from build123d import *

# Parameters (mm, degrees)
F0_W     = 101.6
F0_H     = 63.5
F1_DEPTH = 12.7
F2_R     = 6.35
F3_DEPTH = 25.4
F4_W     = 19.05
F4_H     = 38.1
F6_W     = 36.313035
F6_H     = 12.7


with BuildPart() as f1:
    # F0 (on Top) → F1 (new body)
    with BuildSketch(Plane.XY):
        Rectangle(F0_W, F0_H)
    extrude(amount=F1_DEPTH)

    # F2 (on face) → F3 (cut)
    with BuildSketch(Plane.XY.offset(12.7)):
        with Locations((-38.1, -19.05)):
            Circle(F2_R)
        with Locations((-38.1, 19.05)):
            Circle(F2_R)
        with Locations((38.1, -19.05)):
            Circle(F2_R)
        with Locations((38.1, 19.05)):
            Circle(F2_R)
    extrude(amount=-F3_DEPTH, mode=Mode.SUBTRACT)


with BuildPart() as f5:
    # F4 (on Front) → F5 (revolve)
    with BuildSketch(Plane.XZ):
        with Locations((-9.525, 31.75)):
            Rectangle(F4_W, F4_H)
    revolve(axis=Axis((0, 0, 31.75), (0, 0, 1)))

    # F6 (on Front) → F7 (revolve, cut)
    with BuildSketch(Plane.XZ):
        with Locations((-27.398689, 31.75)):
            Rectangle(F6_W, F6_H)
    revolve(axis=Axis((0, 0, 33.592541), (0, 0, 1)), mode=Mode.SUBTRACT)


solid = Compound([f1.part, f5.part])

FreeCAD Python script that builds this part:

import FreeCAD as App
import Part
import Sketcher

V = App.Vector
Q = App.Units.Quantity

doc = App.newDocument("Part")
body = doc.addObject("PartDesign::Body", "Body")

sketch1 = body.newObject("Sketcher::SketchObject", "Sketch")
sketch1.AttachmentSupport = (doc.getObject("XY_Plane"), [""])
sketch1.MapMode = "FlatFace"
sketch1.addGeometry([
    Part.LineSegment(V(-51, 32, 0), V(-51, -32, 0)),
    Part.LineSegment(V(-51, -32, 0), V(51, -32, 0)),
    Part.LineSegment(V(51, -32, 0), V(51, 32, 0)),
    Part.LineSegment(V(51, 32, 0), V(-51, 32, 0)),
], False)
sketch1.addConstraint([
    Sketcher.Constraint("Coincident", 0, 2, 1, 1),
    Sketcher.Constraint("Coincident", 1, 2, 2, 1),
    Sketcher.Constraint("Coincident", 2, 2, 3, 1),
    Sketcher.Constraint("Coincident", 3, 2, 0, 1),
    Sketcher.Constraint("Vertical", 0),
    Sketcher.Constraint("Horizontal", 1),
    Sketcher.Constraint("Vertical", 2),
    Sketcher.Constraint("Horizontal", 3),
    Sketcher.Constraint("Symmetric", 0, 2, 2, 2, -1, 1),
    Sketcher.Constraint("DistanceX", 1, 1, 1, 2, Q("4 in")),
    Sketcher.Constraint("DistanceY", 0, 2, 0, 1, Q("2.5 in")),
])
pad1 = body.newObject("PartDesign::Pad", "Pad")
pad1.Profile = sketch1
pad1.Length = Q("0.5 in")

sketch2 = body.newObject("Sketcher::SketchObject", "Sketch001")
sketch2.AttachmentSupport = (doc.getObject("XY_Plane"), [""])
sketch2.MapMode = "FlatFace"
sketch2.AttachmentOffset = App.Placement(V(0, 0, 0.5 * 25.4), App.Rotation())
sketch2.addGeometry([
    Part.Circle(V(-38, -19, 0), V(0, 0, 1), 6),
    Part.Circle(V(-38, 19, 0), V(0, 0, 1), 6),
    Part.Circle(V(38, -19, 0), V(0, 0, 1), 6),
    Part.Circle(V(38, 19, 0), V(0, 0, 1), 6),
], False)
sketch2.addConstraint([
    Sketcher.Constraint("Equal", 0, 1),
    Sketcher.Constraint("Equal", 1, 2),
    Sketcher.Constraint("Equal", 2, 3),
    Sketcher.Constraint("Symmetric", 1, 3, 2, 3, -1, 1),
    Sketcher.Constraint("Symmetric", 0, 3, 3, 3, -1, 1),
    Sketcher.Constraint("Symmetric", 0, 3, 2, 3, -2),
    Sketcher.Constraint("Diameter", 0, Q("0.5 in")),
    Sketcher.Constraint("DistanceX", 0, 3, 2, 3, Q("3 in")),
    Sketcher.Constraint("DistanceY", 0, 3, 1, 3, Q("1.5 in")),
])
pocket1 = body.newObject("PartDesign::Pocket", "Pocket")
pocket1.Profile = sketch2
pocket1.Length = Q("1 in")
body2 = doc.addObject("PartDesign::Body", "Body001")

sketch3 = body2.newObject("Sketcher::SketchObject", "Sketch002")
sketch3.AttachmentSupport = (doc.getObject("XZ_Plane001"), [""])
sketch3.MapMode = "FlatFace"
sketch3.addGeometry([
    Part.LineSegment(V(-19, 51, 0), V(-19, 13, 0)),
    Part.LineSegment(V(-19, 13, 0), V(0, 13, 0)),
    Part.LineSegment(V(0, 13, 0), V(0, 51, 0)),
    Part.LineSegment(V(0, 51, 0), V(-19, 51, 0)),
], False)
sketch3.addConstraint([
    Sketcher.Constraint("Coincident", 0, 2, 1, 1),
    Sketcher.Constraint("Coincident", 1, 2, 2, 1),
    Sketcher.Constraint("Coincident", 2, 2, 3, 1),
    Sketcher.Constraint("Coincident", 3, 2, 0, 1),
    Sketcher.Constraint("Vertical", 0),
    Sketcher.Constraint("Horizontal", 1),
    Sketcher.Constraint("Vertical", 2),
    Sketcher.Constraint("Horizontal", 3),
    Sketcher.Constraint("PointOnObject", 1, 2, -2),
    Sketcher.Constraint("DistanceY", 0, 2, 0, 1, Q("1.5 in")),
    Sketcher.Constraint("DistanceY", -1, 1, 2, 2, Q("2 in")),
    Sketcher.Constraint("DistanceX", 1, 1, 1, 2, Q("0.75 in")),
])
revolution = body2.newObject("PartDesign::Revolution", "Revolution")
revolution.Profile = sketch3
revolution.ReferenceAxis = (sketch3, ["V_Axis"])
revolution.Angle = 360

sketch4 = body2.newObject("Sketcher::SketchObject", "Sketch003")
sketch4.AttachmentSupport = (doc.getObject("XZ_Plane001"), [""])
sketch4.MapMode = "FlatFace"
sketch4.addGeometry([
    Part.LineSegment(V(-46, 38, 0), V(-46, 25, 0)),
    Part.LineSegment(V(-46, 25, 0), V(-9, 25, 0)),
    Part.LineSegment(V(-9, 25, 0), V(-9, 38, 0)),
    Part.LineSegment(V(-9, 38, 0), V(-46, 38, 0)),
], False)
sketch4.addConstraint([
    Sketcher.Constraint("Coincident", 0, 2, 1, 1),
    Sketcher.Constraint("Coincident", 1, 2, 2, 1),
    Sketcher.Constraint("Coincident", 2, 2, 3, 1),
    Sketcher.Constraint("Coincident", 3, 2, 0, 1),
    Sketcher.Constraint("Vertical", 0),
    Sketcher.Constraint("Horizontal", 1),
    Sketcher.Constraint("Vertical", 2),
    Sketcher.Constraint("Horizontal", 3),
    Sketcher.Constraint("DistanceY", 0, 2, 0, 1, Q("0.5 in")),
    Sketcher.Constraint("DistanceY", -1, 1, 0, 2, Q("1 in")),
    Sketcher.Constraint("DistanceX", 1, 1, 1, 2, Q("36.313035 mm")),
    Sketcher.Constraint("DistanceX", 1, 2, -1, 1, Q("9.242171 mm")),
])
groove = body2.newObject("PartDesign::Groove", "Groove")
groove.Profile = sketch4
groove.ReferenceAxis = (sketch4, ["V_Axis"])
groove.Angle = 360

doc.recompute()
